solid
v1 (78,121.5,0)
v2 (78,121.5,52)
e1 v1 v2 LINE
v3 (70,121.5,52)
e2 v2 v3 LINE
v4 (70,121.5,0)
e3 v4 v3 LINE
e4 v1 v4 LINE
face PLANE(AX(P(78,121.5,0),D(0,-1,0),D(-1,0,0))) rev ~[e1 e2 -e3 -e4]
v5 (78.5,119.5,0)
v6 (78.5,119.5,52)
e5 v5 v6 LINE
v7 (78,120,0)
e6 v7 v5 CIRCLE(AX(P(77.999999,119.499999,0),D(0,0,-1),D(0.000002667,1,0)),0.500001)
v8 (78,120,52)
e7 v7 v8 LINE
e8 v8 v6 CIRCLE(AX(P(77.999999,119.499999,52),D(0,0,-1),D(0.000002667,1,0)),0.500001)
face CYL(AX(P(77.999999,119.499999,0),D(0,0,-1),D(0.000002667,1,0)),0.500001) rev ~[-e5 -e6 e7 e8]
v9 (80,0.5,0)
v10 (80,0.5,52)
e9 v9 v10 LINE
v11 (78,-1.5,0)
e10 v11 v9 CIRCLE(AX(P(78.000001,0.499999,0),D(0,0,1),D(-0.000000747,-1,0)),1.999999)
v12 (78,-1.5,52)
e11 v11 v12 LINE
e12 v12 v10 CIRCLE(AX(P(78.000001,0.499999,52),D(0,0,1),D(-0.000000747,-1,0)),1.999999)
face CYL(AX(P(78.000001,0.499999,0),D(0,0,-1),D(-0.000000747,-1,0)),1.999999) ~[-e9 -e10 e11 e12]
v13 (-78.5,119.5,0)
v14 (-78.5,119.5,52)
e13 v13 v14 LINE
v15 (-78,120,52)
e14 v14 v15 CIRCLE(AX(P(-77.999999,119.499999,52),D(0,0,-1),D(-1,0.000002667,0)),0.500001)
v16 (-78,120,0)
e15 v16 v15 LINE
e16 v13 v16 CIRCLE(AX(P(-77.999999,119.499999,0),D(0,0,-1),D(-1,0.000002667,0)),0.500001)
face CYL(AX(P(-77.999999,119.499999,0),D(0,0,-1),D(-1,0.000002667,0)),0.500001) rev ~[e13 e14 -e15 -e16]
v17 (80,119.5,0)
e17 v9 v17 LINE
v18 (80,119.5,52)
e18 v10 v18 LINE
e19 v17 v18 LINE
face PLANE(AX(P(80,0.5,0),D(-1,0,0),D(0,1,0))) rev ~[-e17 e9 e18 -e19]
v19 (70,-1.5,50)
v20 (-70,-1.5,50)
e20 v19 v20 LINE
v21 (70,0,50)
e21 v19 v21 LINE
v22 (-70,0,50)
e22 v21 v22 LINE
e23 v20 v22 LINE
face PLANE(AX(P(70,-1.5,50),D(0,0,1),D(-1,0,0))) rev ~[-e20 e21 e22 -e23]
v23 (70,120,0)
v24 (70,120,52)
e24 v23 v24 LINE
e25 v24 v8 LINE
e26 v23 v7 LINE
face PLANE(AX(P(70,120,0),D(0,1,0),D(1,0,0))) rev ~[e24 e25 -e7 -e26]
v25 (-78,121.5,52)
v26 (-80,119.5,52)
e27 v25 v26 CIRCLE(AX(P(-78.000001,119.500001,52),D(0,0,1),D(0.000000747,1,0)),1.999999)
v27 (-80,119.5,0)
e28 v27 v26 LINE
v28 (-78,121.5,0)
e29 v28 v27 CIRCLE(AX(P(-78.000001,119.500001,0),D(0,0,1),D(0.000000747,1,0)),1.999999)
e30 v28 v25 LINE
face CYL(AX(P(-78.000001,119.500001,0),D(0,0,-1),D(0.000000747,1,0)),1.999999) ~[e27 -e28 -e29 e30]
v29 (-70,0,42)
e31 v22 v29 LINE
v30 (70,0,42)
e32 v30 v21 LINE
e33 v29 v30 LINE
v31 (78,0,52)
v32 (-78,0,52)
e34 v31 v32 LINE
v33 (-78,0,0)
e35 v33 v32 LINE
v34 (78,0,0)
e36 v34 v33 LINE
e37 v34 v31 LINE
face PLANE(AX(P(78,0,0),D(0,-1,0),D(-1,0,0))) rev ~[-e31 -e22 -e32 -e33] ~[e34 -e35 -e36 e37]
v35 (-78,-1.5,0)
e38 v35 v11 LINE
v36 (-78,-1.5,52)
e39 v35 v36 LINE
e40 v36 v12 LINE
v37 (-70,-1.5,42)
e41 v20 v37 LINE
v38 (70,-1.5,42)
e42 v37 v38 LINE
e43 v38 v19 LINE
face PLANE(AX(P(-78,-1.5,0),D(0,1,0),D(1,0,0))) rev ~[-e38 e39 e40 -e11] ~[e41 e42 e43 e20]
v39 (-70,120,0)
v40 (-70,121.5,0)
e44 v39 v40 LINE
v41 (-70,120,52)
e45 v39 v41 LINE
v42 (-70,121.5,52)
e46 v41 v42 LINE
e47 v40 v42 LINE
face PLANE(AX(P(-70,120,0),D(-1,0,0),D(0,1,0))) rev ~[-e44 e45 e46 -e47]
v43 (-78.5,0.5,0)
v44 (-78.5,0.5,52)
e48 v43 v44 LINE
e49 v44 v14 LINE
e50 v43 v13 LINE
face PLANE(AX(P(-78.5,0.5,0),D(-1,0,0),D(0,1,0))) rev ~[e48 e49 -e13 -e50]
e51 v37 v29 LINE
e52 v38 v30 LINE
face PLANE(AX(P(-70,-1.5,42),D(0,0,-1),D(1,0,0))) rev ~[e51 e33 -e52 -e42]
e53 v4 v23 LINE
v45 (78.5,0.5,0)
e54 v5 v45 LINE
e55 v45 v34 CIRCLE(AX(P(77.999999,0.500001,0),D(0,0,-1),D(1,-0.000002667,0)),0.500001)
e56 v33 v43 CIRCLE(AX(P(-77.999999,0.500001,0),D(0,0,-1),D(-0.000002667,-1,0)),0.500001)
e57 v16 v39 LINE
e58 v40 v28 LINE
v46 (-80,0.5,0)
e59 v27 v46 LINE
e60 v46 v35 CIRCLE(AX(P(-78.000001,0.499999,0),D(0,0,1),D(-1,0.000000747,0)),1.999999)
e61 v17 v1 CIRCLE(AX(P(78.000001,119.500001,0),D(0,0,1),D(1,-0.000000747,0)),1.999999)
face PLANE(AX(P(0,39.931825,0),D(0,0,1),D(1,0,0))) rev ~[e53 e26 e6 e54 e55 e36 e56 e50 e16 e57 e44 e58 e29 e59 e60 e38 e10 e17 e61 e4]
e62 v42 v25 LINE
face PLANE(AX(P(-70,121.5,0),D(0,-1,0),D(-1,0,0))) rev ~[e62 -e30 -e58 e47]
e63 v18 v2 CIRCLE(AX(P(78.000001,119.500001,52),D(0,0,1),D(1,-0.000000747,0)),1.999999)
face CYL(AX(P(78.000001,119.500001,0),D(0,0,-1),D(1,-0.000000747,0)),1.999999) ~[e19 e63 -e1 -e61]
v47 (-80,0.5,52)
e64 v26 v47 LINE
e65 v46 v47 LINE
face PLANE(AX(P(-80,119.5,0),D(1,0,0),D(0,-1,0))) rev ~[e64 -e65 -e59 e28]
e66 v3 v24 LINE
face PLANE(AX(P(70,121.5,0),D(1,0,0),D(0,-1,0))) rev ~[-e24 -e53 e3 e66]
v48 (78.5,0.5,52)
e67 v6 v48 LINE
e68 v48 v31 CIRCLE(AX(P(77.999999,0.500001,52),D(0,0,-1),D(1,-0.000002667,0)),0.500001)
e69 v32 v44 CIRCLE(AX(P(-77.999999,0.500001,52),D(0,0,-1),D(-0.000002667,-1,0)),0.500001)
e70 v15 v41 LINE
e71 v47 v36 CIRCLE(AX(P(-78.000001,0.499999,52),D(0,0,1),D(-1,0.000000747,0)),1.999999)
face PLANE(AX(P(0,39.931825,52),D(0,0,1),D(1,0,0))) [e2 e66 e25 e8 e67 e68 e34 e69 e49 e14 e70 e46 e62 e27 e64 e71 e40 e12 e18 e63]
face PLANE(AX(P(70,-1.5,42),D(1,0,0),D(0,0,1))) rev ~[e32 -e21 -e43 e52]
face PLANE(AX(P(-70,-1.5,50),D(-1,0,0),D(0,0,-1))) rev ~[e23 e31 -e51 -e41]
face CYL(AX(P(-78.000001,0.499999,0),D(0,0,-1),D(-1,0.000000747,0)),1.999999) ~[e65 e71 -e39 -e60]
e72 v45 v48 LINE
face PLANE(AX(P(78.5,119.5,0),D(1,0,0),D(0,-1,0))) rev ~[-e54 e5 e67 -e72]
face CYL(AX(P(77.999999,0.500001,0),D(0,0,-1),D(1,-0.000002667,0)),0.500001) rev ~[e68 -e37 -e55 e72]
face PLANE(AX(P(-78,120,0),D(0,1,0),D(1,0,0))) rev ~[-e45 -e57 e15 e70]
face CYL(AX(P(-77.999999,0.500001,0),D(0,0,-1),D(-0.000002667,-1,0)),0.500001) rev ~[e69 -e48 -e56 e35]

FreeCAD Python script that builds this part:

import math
import FreeCAD as App
import Part
import Sketcher

doc = App.newDocument("Part")
body = doc.addObject("PartDesign::Body", "Body")

# Sketch on XY plane
sketch1 = body.newObject("Sketcher::SketchObject", "Sketch")
sketch1.AttachmentSupport = (doc.getObject("XY_Plane"), [""])
sketch1.MapMode = "FlatFace"
sketch1.addGeometry([
    Part.LineSegment(App.Vector(78, 0, 0), App.Vector(-78, 0, 0)),  # 0
    Part.ArcOfCircle(Part.Circle(App.Vector(-77.999999, 0.500001, 0), App.Vector(0, 0, 1), 0.500001), math.radians(-179.999847), math.radians(-90.000153)),  # 1
    Part.LineSegment(App.Vector(-78.5, 0.5, 0), App.Vector(-78.5, 119.5, 0)),  # 2
    Part.ArcOfCircle(Part.Circle(App.Vector(-77.999999, 119.499999, 0), App.Vector(0, 0, 1), 0.500001), math.radians(90.000153), math.radians(179.999847)),  # 3
    Part.LineSegment(App.Vector(-78, 120, 0), App.Vector(-70, 120, 0)),  # 4
    Part.LineSegment(App.Vector(-70, 120, 0), App.Vector(-70, 121.5, 0)),  # 5
    Part.LineSegment(App.Vector(-70, 121.5, 0), App.Vector(-78, 121.5, 0)),  # 6
    Part.ArcOfCircle(Part.Circle(App.Vector(-78.000001, 119.500001, 0), App.Vector(0, 0, 1), 1.999999), math.radians(89.999957), math.radians(180.000043)),  # 7
    Part.LineSegment(App.Vector(-80, 119.5, 0), App.Vector(-80, 0.5, 0)),  # 8
    Part.ArcOfCircle(Part.Circle(App.Vector(-78.000001, 0.499999, 0), App.Vector(0, 0, 1), 1.999999), math.radians(179.999957), math.radians(270.000043)),  # 9
    Part.LineSegment(App.Vector(-78, -1.5, 0), App.Vector(78, -1.5, 0)),  # 10
    Part.ArcOfCircle(Part.Circle(App.Vector(78.000001, 0.499999, 0), App.Vector(0, 0, 1), 1.999999), math.radians(-90.000043), math.radians(0.000043)),  # 11
    Part.LineSegment(App.Vector(80, 0.5, 0), App.Vector(80, 119.5, 0)),  # 12
    Part.ArcOfCircle(Part.Circle(App.Vector(78.000001, 119.500001, 0), App.Vector(0, 0, 1), 1.999999), math.radians(-0.000043), math.radians(90.000043)),  # 13
    Part.LineSegment(App.Vector(78, 121.5, 0), App.Vector(70, 121.5, 0)),  # 14
    Part.LineSegment(App.Vector(70, 121.5, 0), App.Vector(70, 120, 0)),  # 15
    Part.LineSegment(App.Vector(70, 120, 0), App.Vector(78, 120, 0)),  # 16
    Part.ArcOfCircle(Part.Circle(App.Vector(77.999999, 119.499999, 0), App.Vector(0, 0, 1), 0.500001), math.radians(0.000153), math.radians(89.999847)),  # 17
    Part.LineSegment(App.Vector(78.5, 119.5, 0), App.Vector(78.5, 0.5, 0)),  # 18
    Part.ArcOfCircle(Part.Circle(App.Vector(77.999999, 0.500001, 0), App.Vector(0, 0, 1), 0.500001), math.radians(-89.999847), math.radians(-0.000153)),  # 19
], False)
sketch1.addConstraint([
    Sketcher.Constraint("Coincident", 0, 2, 1, 2),
    Sketcher.Constraint("Coincident", 1, 1, 2, 1),
    Sketcher.Constraint("Coincident", 2, 2, 3, 2),
    Sketcher.Constraint("Coincident", 3, 1, 4, 1),
    Sketcher.Constraint("Coincident", 4, 2, 5, 1),
    Sketcher.Constraint("Coincident", 5, 2, 6, 1),
    Sketcher.Constraint("Tangent", 6, 2, 7, 1),
    Sketcher.Constraint("Tangent", 7, 2, 8, 1),
    Sketcher.Constraint("Tangent", 8, 2, 9, 1),
    Sketcher.Constraint("Tangent", 9, 2, 10, 1),
    Sketcher.Constraint("Tangent", 10, 2, 11, 1),
    Sketcher.Constraint("Tangent", 11, 2, 12, 1),
    Sketcher.Constraint("Tangent", 12, 2, 13, 1),
    Sketcher.Constraint("Tangent", 13, 2, 14, 1),
    Sketcher.Constraint("Coincident", 14, 2, 15, 1),
    Sketcher.Constraint("Coincident", 15, 2, 16, 1),
    Sketcher.Constraint("Coincident", 16, 2, 17, 2),
    Sketcher.Constraint("Coincident", 17, 1, 18, 1),
    Sketcher.Constraint("Coincident", 18, 2, 19, 2),
    Sketcher.Constraint("Coincident", 19, 1, 0, 1),
    Sketcher.Constraint("Horizontal", 0),
    Sketcher.Constraint("Vertical", 2),
    Sketcher.Constraint("Horizontal", 4),
    Sketcher.Constraint("Vertical", 5),
    Sketcher.Constraint("Horizontal", 6),
    Sketcher.Constraint("Vertical", 8),
    Sketcher.Constraint("Horizontal", 10),
    Sketcher.Constraint("Vertical", 12),
    Sketcher.Constraint("Horizontal", 14),
    Sketcher.Constraint("Vertical", 15),
    Sketcher.Constraint("Horizontal", 16),
    Sketcher.Constraint("Vertical", 18),
    Sketcher.Constraint("Coincident", 7, 3, 3, 3),
    Sketcher.Constraint("Coincident", 9, 3, 1, 3),
    Sketcher.Constraint("Coincident", 17, 3, 13, 3),
    Sketcher.Constraint("Coincident", 19, 3, 11, 3),
    Sketcher.Constraint("Equal", 1, 3),
    Sketcher.Constraint("Equal", 9, 11),
    Sketcher.Constraint("Equal", 11, 13),
    Sketcher.Constraint("Symmetric", 0, 2, 19, 1, -1, 1),
    Sketcher.Constraint("Symmetric", 3, 3, 13, 3, -2),
    Sketcher.Constraint("Horizontal", 19, 3, 1, 1),
    Sketcher.Constraint("Horizontal", 17, 3, 2, 2),
    Sketcher.Constraint("Horizontal", 12, 2, 17, 1),
    Sketcher.Constraint("Horizontal", 11, 2, 18, 2),
    Sketcher.Constraint("Vertical", 9, 3, 0, 2),
    Sketcher.Constraint("Vertical", 0, 2, 3, 1),
    Sketcher.Constraint("Vertical", 13, 2, 16, 2),
    Sketcher.Constraint("Equal", 6, 14),
    Sketcher.Constraint("Radius", 7, 1.999999),
    Sketcher.Constraint("Radius", 1, 0.500001),
    Sketcher.Constraint("DistanceX", 0, 2, 0, 1, 156.0),
    Sketcher.Constraint("DistanceX", 4, 1, 4, 2, 8.0),
    Sketcher.Constraint("DistanceY", 2, 1, 2, 2, 119.0),
])
pad1 = body.newObject("PartDesign::Pad", "Pad")
pad1.Profile = sketch1
pad1.Length = 52

# Sketch on XZ plane
sketch2 = body.newObject("Sketcher::SketchObject", "Sketch001")
sketch2.AttachmentSupport = (doc.getObject("XZ_Plane"), [""])
sketch2.MapMode = "FlatFace"
sketch2.AttachmentOffset = App.Placement(App.Vector(0, 0, 1.5), App.Rotation())
sketch2.addGeometry([
    Part.LineSegment(App.Vector(-70, 50, 0), App.Vector(-70, 42, 0)),
    Part.LineSegment(App.Vector(-70, 42, 0), App.Vector(70, 42, 0)),
    Part.LineSegment(App.Vector(70, 42, 0), App.Vector(70, 50, 0)),
    Part.LineSegment(App.Vector(70, 50, 0), App.Vector(-70, 50, 0)),
], False)
sketch2.addConstraint([
    Sketcher.Constraint("Coincident", 0, 2, 1, 1),
    Sketcher.Constraint("Coincident", 1, 2, 2, 1),
    Sketcher.Constraint("Coincident", 2, 2, 3, 1),
    Sketcher.Constraint("Coincident", 3, 2, 0, 1),
    Sketcher.Constraint("Vertical", 0),
    Sketcher.Constraint("Horizontal", 1),
    Sketcher.Constraint("Vertical", 2),
    Sketcher.Constraint("Horizontal", 3),
    Sketcher.Constraint("DistanceX", 1, 1, 1, 2, 140.0),
    Sketcher.Constraint("DistanceY", 0, 2, 0, 1, 8.0),
    Sketcher.Constraint("DistanceX", 0, 2, -1, 1, 70.0),
    Sketcher.Constraint("DistanceY", -1, 1, 0, 2, 42.0),
])
pocket1 = body.newObject("PartDesign::Pocket", "Pocket")
pocket1.Profile = sketch2
pocket1.Type = "ThroughAll"

doc.recompute()
